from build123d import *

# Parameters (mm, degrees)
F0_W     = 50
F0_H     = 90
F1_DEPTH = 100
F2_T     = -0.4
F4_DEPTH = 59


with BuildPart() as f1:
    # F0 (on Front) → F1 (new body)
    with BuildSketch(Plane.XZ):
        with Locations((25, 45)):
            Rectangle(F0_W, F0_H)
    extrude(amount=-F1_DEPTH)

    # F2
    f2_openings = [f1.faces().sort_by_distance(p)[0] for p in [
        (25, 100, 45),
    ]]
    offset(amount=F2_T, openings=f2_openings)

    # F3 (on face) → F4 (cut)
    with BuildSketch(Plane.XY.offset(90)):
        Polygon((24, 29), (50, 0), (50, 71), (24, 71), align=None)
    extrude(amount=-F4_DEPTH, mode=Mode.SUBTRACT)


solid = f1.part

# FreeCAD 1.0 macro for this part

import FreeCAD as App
import Part
import Sketcher


def faces_at(feature, points):
    """Names of the faces that lie closest to the given points."""
    faces = feature.Shape.Faces
    near = lambda p: min(range(len(faces)), key=lambda i: faces[i].distToShape(Part.Vertex(*p))[0])
    return sorted({f"Face{near(p) + 1}" for p in points})


def add_polygon(sketch, points):
    """Adds a closed chain of lines whose ends are joined by coincident constraints."""
    first, n = sketch.GeometryCount, len(points)
    for a, b in zip(points, points[1:] + points[:1]):
        sketch.addGeometry(Part.LineSegment(App.Vector(*a, 0), App.Vector(*b, 0)), False)
    for i in range(n):
        sketch.addConstraint(Sketcher.Constraint("Coincident", first + i, 2, first + (i + 1) % n, 1))

doc = App.newDocument("Part")
params = doc.addObject("Spreadsheet::Sheet", "Params")
for row, (alias, value) in enumerate([
    ("sketch1_width", "50 mm"),
    ("sketch1_height", "90 mm"),
    ("pad1_length", "100 mm"),
    ("thickness_wall", "0.4 mm"),
    ("sketch2_width", "26 mm"),
    ("sketch2_height", "71 mm"),
    ("sketch2_height2", "42 mm"),
    ("pocket1_length", "59 mm"),
], start=1):
    params.set(f"A{row}", alias)
    params.set(f"B{row}", "=" + value)
    params.setAlias(f"B{row}", alias)

body = doc.addObject("PartDesign::Body", "Body")

sketch1 = body.newObject("Sketcher::SketchObject", "Sketch")
sketch1.AttachmentSupport = (doc.getObject("XZ_Plane"), [""])
sketch1.MapMode = "FlatFace"
add_polygon(sketch1, [(0, 90), (0, 0), (50, 0), (50, 90)])
sketch1.addConstraint([
    Sketcher.Constraint("Vertical", 0),
    Sketcher.Constraint("Horizontal", 1),
    Sketcher.Constraint("Vertical", 2),
    Sketcher.Constraint("Horizontal", 3),
    Sketcher.Constraint("Coincident", 0, 2, -1, 1),
    Sketcher.Constraint("DistanceX", 1, 1, 1, 2, 50.0),
    Sketcher.Constraint("DistanceY", 0, 2, 0, 1, 90.0),
])
sketch1.setExpression("Constraints[9]", "Params.sketch1_width")
sketch1.setExpression("Constraints[10]", "Params.sketch1_height")
pad1 = body.newObject("PartDesign::Pad", "Pad")
pad1.Profile = sketch1
pad1.setExpression("Length", "Params.pad1_length")
pad1.Reversed = True
doc.recompute()

thickness = body.newObject("PartDesign::Thickness", "Thickness")
thickness.Base = (pad1, faces_at(pad1, [(25, 100, 45)]))
thickness.setExpression("Value", "Params.thickness_wall")
thickness.Reversed = True
thickness.Join = "Arc"

sketch2 = body.newObject("Sketcher::SketchObject", "Sketch001")
sketch2.AttachmentSupport = (doc.getObject("XY_Plane"), [""])
sketch2.MapMode = "FlatFace"
sketch2.AttachmentOffset = App.Placement(App.Vector(0, 0, 90), App.Rotation())
add_polygon(sketch2, [(24, 29), (50, 0), (50, 71), (24, 71)])
sketch2.addConstraint([
    Sketcher.Constraint("Vertical", 1),
    Sketcher.Constraint("Horizontal", 2),
    Sketcher.Constraint("Vertical", 3),
    Sketcher.Constraint("PointOnObject", 0, 2, -1),
    Sketcher.Constraint("DistanceX", 2, 2, 2, 1, 26.0),
    Sketcher.Constraint("DistanceY", 1, 1, 1, 2, 71.0),
    Sketcher.Constraint("DistanceY", 3, 2, 3, 1, 42.0),
    Sketcher.Constraint("DistanceX", -1, 1, 0, 2, 50.0),
])
sketch2.setExpression("Constraints[8]", "Params.sketch2_width")
sketch2.setExpression("Constraints[9]", "Params.sketch2_height")
sketch2.setExpression("Constraints[10]", "Params.sketch2_height2")
pocket1 = body.newObject("PartDesign::Pocket", "Pocket")
pocket1.Profile = sketch2
pocket1.setExpression("Length", "Params.pocket1_length")

doc.recompute()
